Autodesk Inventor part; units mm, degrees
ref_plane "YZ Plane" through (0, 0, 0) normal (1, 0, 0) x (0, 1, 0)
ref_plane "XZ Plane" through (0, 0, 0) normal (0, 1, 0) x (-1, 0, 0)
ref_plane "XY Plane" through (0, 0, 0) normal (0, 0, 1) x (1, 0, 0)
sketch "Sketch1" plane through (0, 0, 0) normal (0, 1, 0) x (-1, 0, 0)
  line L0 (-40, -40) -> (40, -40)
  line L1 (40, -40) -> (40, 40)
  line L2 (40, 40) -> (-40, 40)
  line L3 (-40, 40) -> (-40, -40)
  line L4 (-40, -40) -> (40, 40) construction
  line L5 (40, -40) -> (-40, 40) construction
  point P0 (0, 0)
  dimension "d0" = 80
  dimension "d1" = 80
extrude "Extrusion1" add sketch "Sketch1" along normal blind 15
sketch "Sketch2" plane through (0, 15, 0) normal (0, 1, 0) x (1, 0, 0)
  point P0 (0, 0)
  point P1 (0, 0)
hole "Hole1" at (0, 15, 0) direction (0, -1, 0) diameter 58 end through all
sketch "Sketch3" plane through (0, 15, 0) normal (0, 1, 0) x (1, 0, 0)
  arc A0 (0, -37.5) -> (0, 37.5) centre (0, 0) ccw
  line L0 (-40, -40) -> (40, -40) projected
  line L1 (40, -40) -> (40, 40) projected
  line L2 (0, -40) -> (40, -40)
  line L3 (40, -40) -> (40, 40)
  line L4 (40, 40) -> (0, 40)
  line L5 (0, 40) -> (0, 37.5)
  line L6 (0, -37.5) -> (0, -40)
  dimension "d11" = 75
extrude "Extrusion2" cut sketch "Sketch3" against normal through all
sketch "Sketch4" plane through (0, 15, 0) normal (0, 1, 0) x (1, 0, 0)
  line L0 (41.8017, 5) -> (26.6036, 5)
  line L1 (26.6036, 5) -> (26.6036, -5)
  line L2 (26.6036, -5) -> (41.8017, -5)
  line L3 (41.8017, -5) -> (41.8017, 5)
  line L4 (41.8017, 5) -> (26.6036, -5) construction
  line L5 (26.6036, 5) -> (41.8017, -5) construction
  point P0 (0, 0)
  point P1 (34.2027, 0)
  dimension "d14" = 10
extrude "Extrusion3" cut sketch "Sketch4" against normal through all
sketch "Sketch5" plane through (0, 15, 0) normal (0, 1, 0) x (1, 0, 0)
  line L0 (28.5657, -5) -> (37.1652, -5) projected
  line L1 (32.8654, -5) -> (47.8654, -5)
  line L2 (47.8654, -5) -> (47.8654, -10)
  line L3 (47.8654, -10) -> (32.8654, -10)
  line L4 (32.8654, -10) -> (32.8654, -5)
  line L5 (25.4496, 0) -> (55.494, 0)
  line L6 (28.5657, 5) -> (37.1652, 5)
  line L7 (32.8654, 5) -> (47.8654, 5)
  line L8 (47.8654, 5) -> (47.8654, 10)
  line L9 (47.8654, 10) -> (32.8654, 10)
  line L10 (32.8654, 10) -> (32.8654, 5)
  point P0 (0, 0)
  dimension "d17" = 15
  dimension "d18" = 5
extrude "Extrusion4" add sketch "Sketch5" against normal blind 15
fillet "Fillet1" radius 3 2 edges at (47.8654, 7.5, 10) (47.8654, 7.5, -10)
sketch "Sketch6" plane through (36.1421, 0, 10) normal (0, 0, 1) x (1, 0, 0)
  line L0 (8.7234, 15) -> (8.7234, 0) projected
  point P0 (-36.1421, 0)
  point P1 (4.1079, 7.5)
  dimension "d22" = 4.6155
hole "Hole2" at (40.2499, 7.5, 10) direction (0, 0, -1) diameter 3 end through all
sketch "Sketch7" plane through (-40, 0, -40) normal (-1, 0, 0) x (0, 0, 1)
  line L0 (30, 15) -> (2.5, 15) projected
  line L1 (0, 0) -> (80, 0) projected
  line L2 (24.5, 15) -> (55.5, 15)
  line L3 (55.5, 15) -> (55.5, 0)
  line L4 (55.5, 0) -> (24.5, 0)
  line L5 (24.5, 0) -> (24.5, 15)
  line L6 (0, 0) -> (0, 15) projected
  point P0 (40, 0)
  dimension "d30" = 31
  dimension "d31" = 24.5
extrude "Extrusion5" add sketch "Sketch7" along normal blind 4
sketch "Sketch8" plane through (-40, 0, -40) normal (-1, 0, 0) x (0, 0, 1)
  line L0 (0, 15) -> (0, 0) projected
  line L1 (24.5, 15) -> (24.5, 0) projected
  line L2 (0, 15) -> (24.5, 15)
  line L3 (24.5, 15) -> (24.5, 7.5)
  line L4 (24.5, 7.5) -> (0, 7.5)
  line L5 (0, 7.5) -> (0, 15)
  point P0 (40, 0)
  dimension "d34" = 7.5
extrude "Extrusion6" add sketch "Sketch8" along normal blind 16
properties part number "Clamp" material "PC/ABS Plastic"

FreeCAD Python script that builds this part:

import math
import FreeCAD as App
import Part
import Sketcher
Q = App.Units.Quantity


def edges_at(feature, points):
    """Names of the edges that pass closest to the given points."""
    edges = feature.Shape.Edges
    near = lambda p: min(range(len(edges)), key=lambda i: edges[i].distToShape(Part.Vertex(*p))[0])
    return sorted({f"Edge{near(p) + 1}" for p in points})


def add_polygon(sketch, points):
    """Adds a closed chain of lines whose ends are joined by coincident constraints."""
    first, n = sketch.GeometryCount, len(points)
    for a, b in zip(points, points[1:] + points[:1]):
        sketch.addGeometry(Part.LineSegment(App.Vector(*a, 0), App.Vector(*b, 0)), False)
    for i in range(n):
        sketch.addConstraint(Sketcher.Constraint("Coincident", first + i, 2, first + (i + 1) % n, 1))

doc = App.newDocument("Part")
body = doc.addObject("PartDesign::Body", "Body")

# Sketch on XZ plane
sketch1 = body.newObject("Sketcher::SketchObject", "Sketch")
sketch1.AttachmentSupport = (doc.getObject("XZ_Plane"), [""])
sketch1.MapMode = "FlatFace"
add_polygon(sketch1, [(40, 40), (40, -40), (-40, -40), (-40, 40)])  # lines 0-3
sketch1.addConstraint([
    Sketcher.Constraint("Vertical", 0),
    Sketcher.Constraint("Horizontal", 1),
    Sketcher.Constraint("Vertical", 2),
    Sketcher.Constraint("Horizontal", 3),
    Sketcher.Constraint("Symmetric", 0, 2, 2, 2, -1, 1),
    Sketcher.Constraint("Equal", 3, 0),
    Sketcher.Constraint("DistanceX", 1, 2, 1, 1, Q("80 mm")),
])
pad1 = body.newObject("PartDesign::Pad", "Pad")
pad1.Profile = sketch1
pad1.Length = 15
pad1.Reversed = True

# Sketch on XZ plane
sketch2 = body.newObject("Sketcher::SketchObject", "Sketch001")
sketch2.AttachmentSupport = (doc.getObject("XZ_Plane"), [""])
sketch2.MapMode = "FlatFace"
sketch2.AttachmentOffset = App.Placement(App.Vector(0, 0, -15), App.Rotation())
sketch2.addGeometry(Part.Circle(App.Vector(0, 0, 0), App.Vector(0, 0, 1), 29), False)
sketch2.addConstraint([
    Sketcher.Constraint("Coincident", 0, 3, -1, 1),
    Sketcher.Constraint("Diameter", 0, Q("58 mm")),
])
doc.recompute()
hole = body.newObject("PartDesign::Hole", "Hole")
hole.Profile = sketch2
hole.ThreadType = "None"
hole.Diameter = 58
hole.DepthType = "ThroughAll"
hole.Reversed = True

# Sketch on XZ plane
sketch3 = body.newObject("Sketcher::SketchObject", "Sketch002")
sketch3.AttachmentSupport = (doc.getObject("XZ_Plane"), [""])
sketch3.MapMode = "FlatFace"
sketch3.AttachmentOffset = App.Placement(App.Vector(0, 0, -15), App.Rotation())
sketch3.addGeometry([
    Part.ArcOfCircle(Part.Circle(App.Vector(0, 0, 0), App.Vector(0, 0, 1), 37.5), math.radians(-90), math.radians(90)),  # 0
    Part.LineSegment(App.Vector(0, 37.5, 0), App.Vector(0, 40, 0)),  # 1
    Part.LineSegment(App.Vector(0, 40, 0), App.Vector(40, 40, 0)),  # 2
    Part.LineSegment(App.Vector(40, 40, 0), App.Vector(40, -40, 0)),  # 3
    Part.LineSegment(App.Vector(40, -40, 0), App.Vector(0, -40, 0)),  # 4
    Part.LineSegment(App.Vector(0, -40, 0), App.Vector(0, -37.5, 0)),  # 5
], False)
sketch3.addConstraint([
    Sketcher.Constraint("Coincident", 0, 2, 1, 1),
    Sketcher.Constraint("Coincident", 1, 2, 2, 1),
    Sketcher.Constraint("Coincident", 2, 2, 3, 1),
    Sketcher.Constraint("Coincident", 3, 2, 4, 1),
    Sketcher.Constraint("Coincident", 4, 2, 5, 1),
    Sketcher.Constraint("Coincident", 5, 2, 0, 1),
    Sketcher.Constraint("Vertical", 1),
    Sketcher.Constraint("Horizontal", 2),
    Sketcher.Constraint("Vertical", 3),
    Sketcher.Constraint("Horizontal", 4),
    Sketcher.Constraint("Vertical", 5),
    Sketcher.Constraint("Coincident", 0, 3, -1, 1),
    Sketcher.Constraint("Symmetric", 1, 2, 4, 2, -1, 1),
    Sketcher.Constraint("PointOnObject", 0, 2, -2),
    Sketcher.Constraint("Radius", 0, Q("37.5 mm")),
    Sketcher.Constraint("DistanceX", 2, 1, 2, 2, Q("40 mm")),
    Sketcher.Constraint("DistanceY", 3, 2, 3, 1, Q("80 mm")),
])
pocket1 = body.newObject("PartDesign::Pocket", "Pocket")
pocket1.Profile = sketch3
pocket1.Type = "ThroughAll"
pocket1.Reversed = True

# Sketch on XZ plane
sketch4 = body.newObject("Sketcher::SketchObject", "Sketch003")
sketch4.AttachmentSupport = (doc.getObject("XZ_Plane"), [""])
sketch4.MapMode = "FlatFace"
sketch4.AttachmentOffset = App.Placement(App.Vector(0, 0, -15), App.Rotation())
add_polygon(sketch4, [(41.8017, 5), (41.8017, -5), (26.6036, -5), (26.6036, 5)])  # lines 0-3
sketch4.addConstraint([
    Sketcher.Constraint("Vertical", 0),
    Sketcher.Constraint("Horizontal", 1),
    Sketcher.Constraint("Vertical", 2),
    Sketcher.Constraint("Horizontal", 3),
    Sketcher.Constraint("DistanceY", 0, 2, 0, 1, Q("10 mm")),
    Sketcher.Constraint("DistanceY", 0, 2, -1, 1, Q("5 mm")),
    Sketcher.Constraint("DistanceX", 1, 2, 1, 1, Q("15.198 mm")),
    Sketcher.Constraint("DistanceX", -1, 1, 0, 2, Q("41.8017 mm")),
])
pocket2 = body.newObject("PartDesign::Pocket", "Pocket001")
pocket2.Profile = sketch4
pocket2.Type = "ThroughAll"
pocket2.Reversed = True

# Sketch on XZ plane
sketch5 = body.newObject("Sketcher::SketchObject", "Sketch004")
sketch5.AttachmentSupport = (doc.getObject("XZ_Plane"), [""])
sketch5.MapMode = "FlatFace"
sketch5.AttachmentOffset = App.Placement(App.Vector(0, 0, -15), App.Rotation())
add_polygon(sketch5, [(47.8654, 5), (32.8654, 5), (32.8654, 10), (47.8654, 10)])  # lines 0-3
add_polygon(sketch5, [(32.8654, -10), (32.8654, -5), (47.8654, -5), (47.8654, -10)])  # lines 4-7
sketch5.addConstraint([
    Sketcher.Constraint("Horizontal", 0),
    Sketcher.Constraint("Vertical", 1),
    Sketcher.Constraint("Horizontal", 2),
    Sketcher.Constraint("Vertical", 3),
    Sketcher.Constraint("Vertical", 4),
    Sketcher.Constraint("Horizontal", 5),
    Sketcher.Constraint("Vertical", 6),
    Sketcher.Constraint("Horizontal", 7),
    Sketcher.Constraint("Symmetric", 0, 2, 4, 2, -1),
    Sketcher.Constraint("Symmetric", 2, 2, 6, 2, -1),
    Sketcher.Constraint("DistanceX", 0, 2, 0, 1, Q("15 mm")),
    Sketcher.Constraint("DistanceY", 1, 1, 1, 2, Q("5 mm")),
    Sketcher.Constraint("DistanceY", -1, 1, 0, 2, Q("5 mm")),
    Sketcher.Constraint("DistanceX", -1, 1, 0, 2, Q("32.8654 mm")),
])
pad2 = body.newObject("PartDesign::Pad", "Pad001")
pad2.Profile = sketch5
pad2.Length = 15
doc.recompute()

fillet = body.newObject("PartDesign::Fillet", "Fillet")
fillet.Base = (pad2, edges_at(pad2, [(47.865, 7.5, 10), (47.865, 7.5, -10)]))
fillet.Radius = 3

# Sketch on XY plane
sketch6 = body.newObject("Sketcher::SketchObject", "Sketch005")
sketch6.AttachmentSupport = (doc.getObject("XY_Plane"), [""])
sketch6.MapMode = "FlatFace"
sketch6.AttachmentOffset = App.Placement(App.Vector(0, 0, 10), App.Rotation())
sketch6.addGeometry(Part.Circle(App.Vector(40.2499, 7.5, 0), App.Vector(0, 0, 1), 1.5), False)
sketch6.addConstraint([
    Sketcher.Constraint("Diameter", 0, Q("3 mm")),
    Sketcher.Constraint("DistanceY", -1, 1, 0, 3, Q("7.5 mm")),
    Sketcher.Constraint("DistanceX", -1, 1, 0, 3, Q("40.25 mm")),
])
doc.recompute()
hole2 = body.newObject("PartDesign::Hole", "Hole001")
hole2.Profile = sketch6
hole2.ThreadType = "None"
hole2.Diameter = 3
hole2.DepthType = "ThroughAll"

# Sketch on YZ plane
sketch7 = body.newObject("Sketcher::SketchObject", "Sketch006")
sketch7.AttachmentSupport = (doc.getObject("YZ_Plane"), [""])
sketch7.MapMode = "FlatFace"
sketch7.AttachmentOffset = App.Placement(App.Vector(0, 0, -40), App.Rotation())
add_polygon(sketch7, [(15, 15.5), (15, -15.5), (0, -15.5), (0, 15.5)])  # lines 0-3
sketch7.addConstraint([
    Sketcher.Constraint("Vertical", 0),
    Sketcher.Constraint("Horizontal", 1),
    Sketcher.Constraint("Vertical", 2),
    Sketcher.Constraint("Horizontal", 3),
    Sketcher.Constraint("Symmetric", 1, 2, 2, 2, -1, 1),
    Sketcher.Constraint("DistanceY", 0, 2, 0, 1, Q("31 mm")),
    Sketcher.Constraint("DistanceX", 1, 2, 1, 1, Q("15 mm")),
])
pad3 = body.newObject("PartDesign::Pad", "Pad002")
pad3.Profile = sketch7
pad3.Length = 4
pad3.Reversed = True

# Sketch on YZ plane
sketch8 = body.newObject("Sketcher::SketchObject", "Sketch007")
sketch8.AttachmentSupport = (doc.getObject("YZ_Plane"), [""])
sketch8.MapMode = "FlatFace"
sketch8.AttachmentOffset = App.Placement(App.Vector(0, 0, -40), App.Rotation())
add_polygon(sketch8, [(15, -15.5), (15, -40), (7.5, -40), (7.5, -15.5)])  # lines 0-3
sketch8.addConstraint([
    Sketcher.Constraint("Vertical", 0),
    Sketcher.Constraint("Horizontal", 1),
    Sketcher.Constraint("Vertical", 2),
    Sketcher.Constraint("Horizontal", 3),
    Sketcher.Constraint("DistanceX", 1, 2, 1, 1, Q("7.5 mm")),
    Sketcher.Constraint("DistanceX", -1, 1, 1, 2, Q("7.5 mm")),
    Sketcher.Constraint("DistanceY", 0, 2, 0, 1, Q("24.5 mm")),
    Sketcher.Constraint("DistanceY", 0, 2, -1, 1, Q("40 mm")),
])
pad4 = body.newObject("PartDesign::Pad", "Pad003")
pad4.Profile = sketch8
pad4.Length = 16
pad4.Reversed = True

doc.recompute()
